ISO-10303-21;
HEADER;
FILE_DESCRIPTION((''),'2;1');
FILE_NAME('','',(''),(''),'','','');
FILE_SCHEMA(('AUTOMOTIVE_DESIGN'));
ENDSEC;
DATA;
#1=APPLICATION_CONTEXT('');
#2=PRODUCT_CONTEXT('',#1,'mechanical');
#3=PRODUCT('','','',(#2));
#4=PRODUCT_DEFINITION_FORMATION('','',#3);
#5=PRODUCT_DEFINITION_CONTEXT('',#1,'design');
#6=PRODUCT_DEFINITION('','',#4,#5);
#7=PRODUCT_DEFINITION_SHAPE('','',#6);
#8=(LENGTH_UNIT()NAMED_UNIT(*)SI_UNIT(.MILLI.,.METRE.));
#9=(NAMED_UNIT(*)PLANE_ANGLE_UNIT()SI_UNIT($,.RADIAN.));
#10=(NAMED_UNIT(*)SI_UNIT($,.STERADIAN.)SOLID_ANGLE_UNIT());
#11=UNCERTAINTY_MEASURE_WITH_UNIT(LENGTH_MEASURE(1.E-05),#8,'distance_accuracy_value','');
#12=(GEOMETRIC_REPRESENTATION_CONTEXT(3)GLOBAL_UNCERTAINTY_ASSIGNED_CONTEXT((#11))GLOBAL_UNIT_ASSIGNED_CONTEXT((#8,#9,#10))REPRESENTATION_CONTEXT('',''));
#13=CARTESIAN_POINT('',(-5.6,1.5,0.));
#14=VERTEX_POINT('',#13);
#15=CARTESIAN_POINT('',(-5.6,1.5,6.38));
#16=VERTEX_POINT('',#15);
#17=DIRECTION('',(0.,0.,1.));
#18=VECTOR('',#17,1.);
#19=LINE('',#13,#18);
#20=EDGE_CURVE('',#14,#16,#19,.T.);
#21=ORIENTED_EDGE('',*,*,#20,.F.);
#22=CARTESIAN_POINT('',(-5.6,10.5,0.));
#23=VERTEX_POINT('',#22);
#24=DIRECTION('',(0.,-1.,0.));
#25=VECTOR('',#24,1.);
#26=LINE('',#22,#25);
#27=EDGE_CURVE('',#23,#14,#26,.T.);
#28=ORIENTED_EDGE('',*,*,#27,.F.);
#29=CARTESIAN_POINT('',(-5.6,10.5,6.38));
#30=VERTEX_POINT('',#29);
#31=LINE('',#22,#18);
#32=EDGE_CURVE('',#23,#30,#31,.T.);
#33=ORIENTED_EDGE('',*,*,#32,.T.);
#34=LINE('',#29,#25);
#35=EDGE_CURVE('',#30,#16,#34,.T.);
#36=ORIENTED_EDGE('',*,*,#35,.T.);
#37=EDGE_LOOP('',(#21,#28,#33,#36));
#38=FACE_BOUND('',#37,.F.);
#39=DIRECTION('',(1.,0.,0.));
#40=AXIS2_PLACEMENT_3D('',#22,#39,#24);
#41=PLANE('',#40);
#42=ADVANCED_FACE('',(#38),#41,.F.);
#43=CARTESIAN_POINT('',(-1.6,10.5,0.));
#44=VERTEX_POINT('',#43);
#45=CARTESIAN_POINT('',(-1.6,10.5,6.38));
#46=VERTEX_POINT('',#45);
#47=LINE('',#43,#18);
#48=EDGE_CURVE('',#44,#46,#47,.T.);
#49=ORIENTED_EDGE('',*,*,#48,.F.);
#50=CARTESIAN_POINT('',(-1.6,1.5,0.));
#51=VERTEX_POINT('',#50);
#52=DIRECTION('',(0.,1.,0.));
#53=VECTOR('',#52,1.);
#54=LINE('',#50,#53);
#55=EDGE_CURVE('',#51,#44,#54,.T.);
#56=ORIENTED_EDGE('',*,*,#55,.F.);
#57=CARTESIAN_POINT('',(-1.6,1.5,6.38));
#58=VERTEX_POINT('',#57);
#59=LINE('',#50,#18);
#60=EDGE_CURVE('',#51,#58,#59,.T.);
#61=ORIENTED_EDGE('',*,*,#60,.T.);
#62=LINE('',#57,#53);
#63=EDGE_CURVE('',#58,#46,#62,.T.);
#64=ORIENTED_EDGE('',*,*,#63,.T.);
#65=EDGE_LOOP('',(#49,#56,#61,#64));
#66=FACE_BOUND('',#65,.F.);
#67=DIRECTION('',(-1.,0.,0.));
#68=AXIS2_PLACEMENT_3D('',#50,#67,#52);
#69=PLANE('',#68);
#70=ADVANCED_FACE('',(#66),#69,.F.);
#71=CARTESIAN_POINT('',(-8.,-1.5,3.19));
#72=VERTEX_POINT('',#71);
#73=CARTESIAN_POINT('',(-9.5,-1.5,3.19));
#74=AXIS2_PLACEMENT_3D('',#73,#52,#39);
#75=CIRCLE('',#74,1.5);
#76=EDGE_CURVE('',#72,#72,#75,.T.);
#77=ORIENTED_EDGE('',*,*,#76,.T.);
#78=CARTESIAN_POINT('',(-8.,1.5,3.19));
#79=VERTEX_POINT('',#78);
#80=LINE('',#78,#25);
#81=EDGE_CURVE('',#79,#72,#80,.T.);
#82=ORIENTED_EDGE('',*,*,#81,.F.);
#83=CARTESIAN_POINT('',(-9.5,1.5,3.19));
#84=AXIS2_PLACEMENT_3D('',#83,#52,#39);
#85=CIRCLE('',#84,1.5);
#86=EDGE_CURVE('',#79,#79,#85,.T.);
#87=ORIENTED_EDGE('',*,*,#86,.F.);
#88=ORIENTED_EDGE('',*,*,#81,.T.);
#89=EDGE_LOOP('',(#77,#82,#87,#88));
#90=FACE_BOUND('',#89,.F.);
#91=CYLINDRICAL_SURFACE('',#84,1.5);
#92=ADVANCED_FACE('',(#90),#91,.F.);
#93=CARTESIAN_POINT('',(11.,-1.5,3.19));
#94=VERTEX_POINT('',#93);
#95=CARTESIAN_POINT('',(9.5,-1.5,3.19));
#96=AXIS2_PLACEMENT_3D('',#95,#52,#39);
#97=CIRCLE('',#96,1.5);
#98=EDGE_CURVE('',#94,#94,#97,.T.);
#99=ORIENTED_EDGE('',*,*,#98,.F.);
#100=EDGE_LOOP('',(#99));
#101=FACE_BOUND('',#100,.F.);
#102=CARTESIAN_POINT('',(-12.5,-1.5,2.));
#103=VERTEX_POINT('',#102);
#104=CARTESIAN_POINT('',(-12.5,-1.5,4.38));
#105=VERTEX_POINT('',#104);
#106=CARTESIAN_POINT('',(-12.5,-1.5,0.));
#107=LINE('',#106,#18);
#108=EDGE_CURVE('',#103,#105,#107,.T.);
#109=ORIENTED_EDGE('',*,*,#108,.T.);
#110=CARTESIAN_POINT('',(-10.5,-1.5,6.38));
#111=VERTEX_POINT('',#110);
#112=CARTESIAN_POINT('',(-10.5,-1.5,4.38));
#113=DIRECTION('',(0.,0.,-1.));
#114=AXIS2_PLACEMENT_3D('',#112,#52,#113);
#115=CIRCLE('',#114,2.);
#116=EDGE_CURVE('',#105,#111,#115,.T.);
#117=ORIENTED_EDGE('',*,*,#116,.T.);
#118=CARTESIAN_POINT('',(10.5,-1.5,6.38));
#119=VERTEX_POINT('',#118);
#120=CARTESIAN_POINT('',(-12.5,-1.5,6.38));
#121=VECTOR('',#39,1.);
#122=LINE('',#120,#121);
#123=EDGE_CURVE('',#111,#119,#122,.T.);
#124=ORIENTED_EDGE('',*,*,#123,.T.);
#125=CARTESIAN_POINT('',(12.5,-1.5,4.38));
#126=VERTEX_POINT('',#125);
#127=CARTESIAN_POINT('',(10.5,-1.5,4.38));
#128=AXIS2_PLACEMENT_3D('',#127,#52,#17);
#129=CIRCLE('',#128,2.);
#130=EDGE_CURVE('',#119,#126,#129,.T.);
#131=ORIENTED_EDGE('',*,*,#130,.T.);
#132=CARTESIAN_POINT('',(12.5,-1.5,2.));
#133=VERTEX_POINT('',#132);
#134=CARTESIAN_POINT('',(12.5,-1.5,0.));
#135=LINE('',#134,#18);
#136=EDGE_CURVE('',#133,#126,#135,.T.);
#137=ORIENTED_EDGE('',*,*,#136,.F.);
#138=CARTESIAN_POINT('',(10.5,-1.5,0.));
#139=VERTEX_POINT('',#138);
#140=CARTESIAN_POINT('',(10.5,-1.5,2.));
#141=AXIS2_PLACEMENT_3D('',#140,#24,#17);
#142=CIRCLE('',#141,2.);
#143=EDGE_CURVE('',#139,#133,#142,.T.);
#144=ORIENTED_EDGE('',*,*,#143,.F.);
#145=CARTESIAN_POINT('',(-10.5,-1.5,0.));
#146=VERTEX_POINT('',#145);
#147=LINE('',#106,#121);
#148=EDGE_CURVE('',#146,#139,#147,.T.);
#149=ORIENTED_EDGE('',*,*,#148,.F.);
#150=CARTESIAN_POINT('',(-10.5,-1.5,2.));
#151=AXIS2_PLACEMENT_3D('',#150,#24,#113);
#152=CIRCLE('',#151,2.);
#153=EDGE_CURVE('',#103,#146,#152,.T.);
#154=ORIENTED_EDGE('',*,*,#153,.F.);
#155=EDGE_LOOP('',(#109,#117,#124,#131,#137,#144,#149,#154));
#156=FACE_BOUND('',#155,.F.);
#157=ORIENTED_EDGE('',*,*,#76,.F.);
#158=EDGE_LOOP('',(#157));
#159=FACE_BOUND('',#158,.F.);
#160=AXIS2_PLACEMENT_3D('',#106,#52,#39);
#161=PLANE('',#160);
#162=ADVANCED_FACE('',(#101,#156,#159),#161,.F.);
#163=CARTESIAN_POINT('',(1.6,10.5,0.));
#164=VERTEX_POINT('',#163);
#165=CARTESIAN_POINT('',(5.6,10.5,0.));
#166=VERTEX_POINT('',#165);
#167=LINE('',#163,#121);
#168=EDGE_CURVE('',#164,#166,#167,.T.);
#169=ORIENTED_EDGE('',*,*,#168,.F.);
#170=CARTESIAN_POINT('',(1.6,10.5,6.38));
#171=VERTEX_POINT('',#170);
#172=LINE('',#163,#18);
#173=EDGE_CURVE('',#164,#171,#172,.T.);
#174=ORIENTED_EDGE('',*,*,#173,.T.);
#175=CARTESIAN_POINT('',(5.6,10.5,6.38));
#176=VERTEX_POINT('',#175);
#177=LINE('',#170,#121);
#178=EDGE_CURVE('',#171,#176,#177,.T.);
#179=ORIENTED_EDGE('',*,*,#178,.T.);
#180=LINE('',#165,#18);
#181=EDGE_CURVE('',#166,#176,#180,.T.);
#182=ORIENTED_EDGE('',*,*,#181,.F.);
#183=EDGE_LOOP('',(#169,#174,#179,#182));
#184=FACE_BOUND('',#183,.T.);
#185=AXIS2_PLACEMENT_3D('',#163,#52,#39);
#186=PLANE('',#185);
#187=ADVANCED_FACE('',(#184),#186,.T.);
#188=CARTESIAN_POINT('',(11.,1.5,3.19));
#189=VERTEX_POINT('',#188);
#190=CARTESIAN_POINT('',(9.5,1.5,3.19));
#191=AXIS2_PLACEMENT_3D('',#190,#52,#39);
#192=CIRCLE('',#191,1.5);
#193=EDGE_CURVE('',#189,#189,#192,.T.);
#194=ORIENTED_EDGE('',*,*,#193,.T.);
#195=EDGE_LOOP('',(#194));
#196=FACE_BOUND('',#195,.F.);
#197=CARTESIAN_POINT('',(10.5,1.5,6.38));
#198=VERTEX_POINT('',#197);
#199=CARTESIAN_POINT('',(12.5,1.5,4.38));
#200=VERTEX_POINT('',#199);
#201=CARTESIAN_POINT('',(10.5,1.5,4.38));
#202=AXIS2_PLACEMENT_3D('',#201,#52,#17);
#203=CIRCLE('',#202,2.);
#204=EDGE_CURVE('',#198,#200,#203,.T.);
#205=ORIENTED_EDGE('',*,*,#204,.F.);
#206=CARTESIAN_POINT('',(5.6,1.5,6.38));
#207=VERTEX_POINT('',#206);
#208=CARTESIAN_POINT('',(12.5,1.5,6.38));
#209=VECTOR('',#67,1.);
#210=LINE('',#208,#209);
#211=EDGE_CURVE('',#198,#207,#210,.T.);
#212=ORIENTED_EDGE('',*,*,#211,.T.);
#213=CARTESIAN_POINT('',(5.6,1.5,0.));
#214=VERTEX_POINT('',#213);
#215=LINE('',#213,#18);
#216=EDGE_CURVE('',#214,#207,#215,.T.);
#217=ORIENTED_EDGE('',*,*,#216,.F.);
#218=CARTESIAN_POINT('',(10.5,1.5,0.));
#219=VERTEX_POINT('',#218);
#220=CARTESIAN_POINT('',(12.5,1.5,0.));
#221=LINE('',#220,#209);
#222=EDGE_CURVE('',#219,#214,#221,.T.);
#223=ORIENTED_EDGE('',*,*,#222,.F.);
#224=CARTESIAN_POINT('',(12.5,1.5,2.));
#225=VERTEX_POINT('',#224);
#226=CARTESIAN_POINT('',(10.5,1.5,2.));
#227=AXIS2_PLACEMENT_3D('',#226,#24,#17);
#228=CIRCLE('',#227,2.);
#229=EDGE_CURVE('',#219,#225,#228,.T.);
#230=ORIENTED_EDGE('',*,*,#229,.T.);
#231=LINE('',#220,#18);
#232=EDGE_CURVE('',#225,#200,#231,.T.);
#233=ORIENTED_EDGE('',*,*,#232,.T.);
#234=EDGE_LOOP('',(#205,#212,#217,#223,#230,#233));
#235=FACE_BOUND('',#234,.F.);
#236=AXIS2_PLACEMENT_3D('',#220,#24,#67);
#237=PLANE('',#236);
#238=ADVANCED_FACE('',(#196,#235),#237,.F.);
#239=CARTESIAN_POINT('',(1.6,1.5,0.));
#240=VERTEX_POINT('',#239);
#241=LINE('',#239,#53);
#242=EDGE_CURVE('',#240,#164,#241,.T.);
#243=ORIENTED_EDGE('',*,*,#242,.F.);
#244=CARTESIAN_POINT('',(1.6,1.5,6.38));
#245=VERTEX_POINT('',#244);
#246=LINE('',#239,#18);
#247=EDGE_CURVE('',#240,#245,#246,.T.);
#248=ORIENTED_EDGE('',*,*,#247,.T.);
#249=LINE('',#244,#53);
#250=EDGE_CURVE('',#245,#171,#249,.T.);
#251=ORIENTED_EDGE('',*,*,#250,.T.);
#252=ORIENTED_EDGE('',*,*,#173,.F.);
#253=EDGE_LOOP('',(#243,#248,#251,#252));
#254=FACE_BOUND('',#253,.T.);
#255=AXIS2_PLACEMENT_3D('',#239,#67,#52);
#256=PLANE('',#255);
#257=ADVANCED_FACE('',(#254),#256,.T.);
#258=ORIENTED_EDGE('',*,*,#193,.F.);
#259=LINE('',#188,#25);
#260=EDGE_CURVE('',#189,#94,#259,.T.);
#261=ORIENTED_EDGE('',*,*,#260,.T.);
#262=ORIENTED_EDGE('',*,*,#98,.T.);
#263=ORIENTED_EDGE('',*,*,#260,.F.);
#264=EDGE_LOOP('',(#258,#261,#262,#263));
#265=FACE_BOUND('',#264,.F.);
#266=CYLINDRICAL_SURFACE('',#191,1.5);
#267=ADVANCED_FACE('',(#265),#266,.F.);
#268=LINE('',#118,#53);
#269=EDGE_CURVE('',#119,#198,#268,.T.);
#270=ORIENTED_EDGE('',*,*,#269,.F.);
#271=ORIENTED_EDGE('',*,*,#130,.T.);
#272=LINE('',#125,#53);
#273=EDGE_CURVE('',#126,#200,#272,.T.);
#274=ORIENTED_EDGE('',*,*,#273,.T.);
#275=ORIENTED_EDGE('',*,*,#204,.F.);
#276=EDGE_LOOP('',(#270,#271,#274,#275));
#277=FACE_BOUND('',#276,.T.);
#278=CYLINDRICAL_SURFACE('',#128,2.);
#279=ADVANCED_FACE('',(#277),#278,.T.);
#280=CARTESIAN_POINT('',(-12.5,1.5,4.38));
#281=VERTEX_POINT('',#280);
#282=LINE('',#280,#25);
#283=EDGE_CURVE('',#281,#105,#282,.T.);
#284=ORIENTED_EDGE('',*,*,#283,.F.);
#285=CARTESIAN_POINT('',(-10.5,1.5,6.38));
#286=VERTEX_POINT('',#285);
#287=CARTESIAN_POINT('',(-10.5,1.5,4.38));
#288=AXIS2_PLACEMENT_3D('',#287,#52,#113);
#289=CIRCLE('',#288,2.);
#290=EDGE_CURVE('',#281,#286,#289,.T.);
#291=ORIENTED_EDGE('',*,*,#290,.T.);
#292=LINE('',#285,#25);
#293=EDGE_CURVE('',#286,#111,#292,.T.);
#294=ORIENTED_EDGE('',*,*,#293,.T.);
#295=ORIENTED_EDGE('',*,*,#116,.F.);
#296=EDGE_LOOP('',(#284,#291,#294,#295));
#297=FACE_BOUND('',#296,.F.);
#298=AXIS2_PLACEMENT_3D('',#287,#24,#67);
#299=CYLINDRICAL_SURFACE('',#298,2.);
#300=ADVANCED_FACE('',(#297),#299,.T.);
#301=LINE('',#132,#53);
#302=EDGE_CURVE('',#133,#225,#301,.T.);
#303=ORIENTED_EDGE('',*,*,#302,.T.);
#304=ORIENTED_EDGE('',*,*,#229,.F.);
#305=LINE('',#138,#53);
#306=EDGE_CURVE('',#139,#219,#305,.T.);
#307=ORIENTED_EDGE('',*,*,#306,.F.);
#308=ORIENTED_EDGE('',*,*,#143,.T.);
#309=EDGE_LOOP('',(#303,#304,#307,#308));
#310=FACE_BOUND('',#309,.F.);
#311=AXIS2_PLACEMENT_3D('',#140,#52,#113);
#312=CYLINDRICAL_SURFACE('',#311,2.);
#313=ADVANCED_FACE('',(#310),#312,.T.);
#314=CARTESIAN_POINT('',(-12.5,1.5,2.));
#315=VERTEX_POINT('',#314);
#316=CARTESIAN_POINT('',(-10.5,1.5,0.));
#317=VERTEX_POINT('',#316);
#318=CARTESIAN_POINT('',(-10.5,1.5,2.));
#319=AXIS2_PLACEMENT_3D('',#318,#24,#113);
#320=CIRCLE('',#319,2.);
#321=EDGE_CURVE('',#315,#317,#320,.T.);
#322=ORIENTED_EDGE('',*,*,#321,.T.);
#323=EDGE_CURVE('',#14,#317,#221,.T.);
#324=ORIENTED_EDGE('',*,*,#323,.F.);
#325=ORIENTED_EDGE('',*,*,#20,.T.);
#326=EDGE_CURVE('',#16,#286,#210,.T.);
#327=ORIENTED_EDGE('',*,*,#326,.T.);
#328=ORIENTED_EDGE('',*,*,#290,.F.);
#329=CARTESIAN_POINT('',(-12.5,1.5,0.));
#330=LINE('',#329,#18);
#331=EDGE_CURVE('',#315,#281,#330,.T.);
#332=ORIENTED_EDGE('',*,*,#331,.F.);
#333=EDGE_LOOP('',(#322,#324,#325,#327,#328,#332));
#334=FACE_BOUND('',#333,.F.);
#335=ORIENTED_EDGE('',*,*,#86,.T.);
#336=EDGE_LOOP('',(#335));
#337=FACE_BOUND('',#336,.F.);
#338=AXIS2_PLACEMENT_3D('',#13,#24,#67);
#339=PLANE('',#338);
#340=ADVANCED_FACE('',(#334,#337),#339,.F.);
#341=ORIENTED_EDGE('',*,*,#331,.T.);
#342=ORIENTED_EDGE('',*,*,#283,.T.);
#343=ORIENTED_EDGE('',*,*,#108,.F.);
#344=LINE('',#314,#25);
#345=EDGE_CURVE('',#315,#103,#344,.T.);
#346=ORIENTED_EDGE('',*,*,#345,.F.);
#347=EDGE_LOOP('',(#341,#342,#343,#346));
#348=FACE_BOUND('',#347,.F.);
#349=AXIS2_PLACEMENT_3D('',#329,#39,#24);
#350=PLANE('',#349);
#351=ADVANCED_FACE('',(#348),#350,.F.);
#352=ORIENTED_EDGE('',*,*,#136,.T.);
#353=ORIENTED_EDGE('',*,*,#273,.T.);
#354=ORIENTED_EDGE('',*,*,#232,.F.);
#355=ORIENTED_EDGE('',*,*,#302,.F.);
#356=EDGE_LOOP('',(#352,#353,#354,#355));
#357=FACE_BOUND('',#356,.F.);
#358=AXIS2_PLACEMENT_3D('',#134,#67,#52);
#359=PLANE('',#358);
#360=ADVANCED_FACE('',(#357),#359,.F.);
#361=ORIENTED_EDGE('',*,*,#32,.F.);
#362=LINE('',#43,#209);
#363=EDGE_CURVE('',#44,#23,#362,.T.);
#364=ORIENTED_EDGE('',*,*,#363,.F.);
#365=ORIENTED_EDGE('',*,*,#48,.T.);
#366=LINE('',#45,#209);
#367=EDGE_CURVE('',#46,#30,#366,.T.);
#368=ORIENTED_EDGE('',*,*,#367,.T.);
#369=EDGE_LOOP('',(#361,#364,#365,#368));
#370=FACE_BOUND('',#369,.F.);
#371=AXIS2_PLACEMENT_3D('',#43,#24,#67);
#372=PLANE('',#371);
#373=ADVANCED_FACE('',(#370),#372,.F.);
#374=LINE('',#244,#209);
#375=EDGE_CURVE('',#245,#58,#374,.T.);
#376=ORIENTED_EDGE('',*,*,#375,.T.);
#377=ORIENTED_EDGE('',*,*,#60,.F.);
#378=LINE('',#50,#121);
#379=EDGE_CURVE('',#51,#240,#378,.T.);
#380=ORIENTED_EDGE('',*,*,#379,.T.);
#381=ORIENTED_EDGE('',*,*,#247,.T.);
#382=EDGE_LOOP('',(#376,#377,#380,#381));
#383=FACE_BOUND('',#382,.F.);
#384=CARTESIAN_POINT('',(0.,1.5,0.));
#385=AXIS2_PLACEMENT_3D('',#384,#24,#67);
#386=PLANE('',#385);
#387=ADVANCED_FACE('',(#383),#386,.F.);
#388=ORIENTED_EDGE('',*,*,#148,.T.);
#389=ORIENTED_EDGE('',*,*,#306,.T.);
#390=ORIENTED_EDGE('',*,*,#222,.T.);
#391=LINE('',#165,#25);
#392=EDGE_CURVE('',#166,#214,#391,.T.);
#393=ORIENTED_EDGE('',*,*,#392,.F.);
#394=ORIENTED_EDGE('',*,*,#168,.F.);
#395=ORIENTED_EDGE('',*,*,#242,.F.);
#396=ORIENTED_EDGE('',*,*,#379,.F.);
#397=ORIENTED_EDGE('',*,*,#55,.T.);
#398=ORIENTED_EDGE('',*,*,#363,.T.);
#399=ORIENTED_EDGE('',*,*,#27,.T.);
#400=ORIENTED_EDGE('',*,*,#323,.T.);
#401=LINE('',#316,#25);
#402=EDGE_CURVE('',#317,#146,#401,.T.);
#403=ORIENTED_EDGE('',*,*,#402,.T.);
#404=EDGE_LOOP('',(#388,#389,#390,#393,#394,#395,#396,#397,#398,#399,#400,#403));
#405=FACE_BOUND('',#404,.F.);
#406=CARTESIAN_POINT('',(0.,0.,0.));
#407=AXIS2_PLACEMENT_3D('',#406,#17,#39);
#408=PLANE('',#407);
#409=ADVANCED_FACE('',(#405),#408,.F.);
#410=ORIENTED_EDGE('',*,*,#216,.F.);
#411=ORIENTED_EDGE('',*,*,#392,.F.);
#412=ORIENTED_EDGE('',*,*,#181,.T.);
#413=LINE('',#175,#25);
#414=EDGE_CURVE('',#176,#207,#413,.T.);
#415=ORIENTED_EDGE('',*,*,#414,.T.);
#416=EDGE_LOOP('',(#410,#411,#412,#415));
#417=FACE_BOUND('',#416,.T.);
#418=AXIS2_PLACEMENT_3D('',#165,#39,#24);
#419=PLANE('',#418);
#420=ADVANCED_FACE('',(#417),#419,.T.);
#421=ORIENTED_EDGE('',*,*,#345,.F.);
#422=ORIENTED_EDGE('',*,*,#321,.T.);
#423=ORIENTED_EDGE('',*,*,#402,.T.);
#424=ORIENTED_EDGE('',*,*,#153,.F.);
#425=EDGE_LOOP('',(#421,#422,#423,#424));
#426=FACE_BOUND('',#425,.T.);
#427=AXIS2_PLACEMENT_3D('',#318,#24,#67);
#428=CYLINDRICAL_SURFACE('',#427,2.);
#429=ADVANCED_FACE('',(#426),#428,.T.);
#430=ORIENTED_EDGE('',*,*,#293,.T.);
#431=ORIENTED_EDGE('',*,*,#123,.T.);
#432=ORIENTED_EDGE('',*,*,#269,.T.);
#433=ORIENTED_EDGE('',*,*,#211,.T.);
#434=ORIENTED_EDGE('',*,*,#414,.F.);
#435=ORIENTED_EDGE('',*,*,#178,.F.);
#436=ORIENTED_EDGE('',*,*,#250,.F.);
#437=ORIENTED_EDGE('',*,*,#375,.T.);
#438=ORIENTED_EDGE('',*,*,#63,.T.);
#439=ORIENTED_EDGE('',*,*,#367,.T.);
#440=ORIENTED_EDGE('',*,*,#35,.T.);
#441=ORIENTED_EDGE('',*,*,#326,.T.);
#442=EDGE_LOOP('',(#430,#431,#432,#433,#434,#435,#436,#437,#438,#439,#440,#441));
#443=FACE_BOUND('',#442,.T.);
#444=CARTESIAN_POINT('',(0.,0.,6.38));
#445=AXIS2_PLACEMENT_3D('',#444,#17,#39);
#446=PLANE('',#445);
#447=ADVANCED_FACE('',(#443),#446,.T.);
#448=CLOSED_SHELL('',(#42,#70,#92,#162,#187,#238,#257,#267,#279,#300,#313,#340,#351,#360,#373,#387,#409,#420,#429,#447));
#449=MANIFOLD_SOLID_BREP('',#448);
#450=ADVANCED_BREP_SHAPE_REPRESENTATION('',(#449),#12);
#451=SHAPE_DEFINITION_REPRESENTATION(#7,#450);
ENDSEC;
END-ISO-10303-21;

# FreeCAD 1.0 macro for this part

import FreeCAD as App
import Part
import Sketcher
Q = App.Units.Quantity


def edges_at(feature, points):
    """Names of the edges that pass closest to the given points."""
    edges = feature.Shape.Edges
    near = lambda p: min(range(len(edges)), key=lambda i: edges[i].distToShape(Part.Vertex(*p))[0])
    return sorted({f"Edge{near(p) + 1}" for p in points})


def add_polygon(sketch, points):
    """Adds a closed chain of lines whose ends are joined by coincident constraints."""
    first, n = sketch.GeometryCount, len(points)
    for a, b in zip(points, points[1:] + points[:1]):
        sketch.addGeometry(Part.LineSegment(App.Vector(*a, 0), App.Vector(*b, 0)), False)
    for i in range(n):
        sketch.addConstraint(Sketcher.Constraint("Coincident", first + i, 2, first + (i + 1) % n, 1))

doc = App.newDocument("Part")
body = doc.addObject("PartDesign::Body", "Body")

# Sketch on XY plane
sketch1 = body.newObject("Sketcher::SketchObject", "Sketch")
sketch1.AttachmentSupport = (doc.getObject("XY_Plane"), [""])
sketch1.MapMode = "FlatFace"
add_polygon(sketch1, [(-12.5, 1.5), (-12.5, -1.5), (12.5, -1.5), (12.5, 1.5), (5.6, 1.5), (5.6, 10.5), (1.6, 10.5), (1.6, 1.5), (-1.6, 1.5), (-1.6, 10.5), (-5.6, 10.5), (-5.6, 1.5)])  # lines 0-11
sketch1.addConstraint([
    Sketcher.Constraint("Vertical", 0),
    Sketcher.Constraint("Horizontal", 1),
    Sketcher.Constraint("Vertical", 2),
    Sketcher.Constraint("Horizontal", 3),
    Sketcher.Constraint("Vertical", 4),
    Sketcher.Constraint("Horizontal", 5),
    Sketcher.Constraint("Vertical", 6),
    Sketcher.Constraint("Horizontal", 7),
    Sketcher.Constraint("Vertical", 8),
    Sketcher.Constraint("Horizontal", 9),
    Sketcher.Constraint("Vertical", 10),
    Sketcher.Constraint("Horizontal", 11),
    Sketcher.Constraint("Symmetric", 0, 2, 2, 2, -1, 1),
    Sketcher.Constraint("Symmetric", 5, 2, 8, 2, -2),
    Sketcher.Constraint("Symmetric", 3, 2, 10, 2, -2),
    Sketcher.Constraint("Horizontal", 3, 2, 6, 2),
    Sketcher.Constraint("DistanceX", 1, 1, 1, 2, Q("25 mm")),
    Sketcher.Constraint("DistanceX", 5, 2, 5, 1, Q("4 mm")),
    Sketcher.Constraint("DistanceY", 0, 2, 0, 1, Q("3 mm")),
    Sketcher.Constraint("DistanceY", 4, 1, 4, 2, Q("9 mm")),
    Sketcher.Constraint("DistanceX", 7, 2, 7, 1, Q("3.2 mm")),
])
pad1 = body.newObject("PartDesign::Pad", "Pad")
pad1.Profile = sketch1
pad1.Length = 6.38

# Sketch on XZ plane
sketch2 = body.newObject("Sketcher::SketchObject", "Sketch001")
sketch2.AttachmentSupport = (doc.getObject("XZ_Plane"), [""])
sketch2.MapMode = "FlatFace"
sketch2.AttachmentOffset = App.Placement(App.Vector(0, 0, -1.5), App.Rotation())
sketch2.addGeometry([
    Part.Circle(App.Vector(9.5, 3.2, 0), App.Vector(0, 0, 1), 1.5),
    Part.Circle(App.Vector(-9.5, 3.2, 0), App.Vector(0, 0, 1), 1.5),
], False)
sketch2.addConstraint([
    Sketcher.Constraint("Equal", 0, 1),
    Sketcher.Constraint("Symmetric", 0, 3, 1, 3, -2),
    Sketcher.Constraint("Diameter", 0, Q("3 mm")),
    Sketcher.Constraint("DistanceX", 1, 3, 0, 3, Q("19 mm")),
    Sketcher.Constraint("DistanceY", -1, 1, 0, 3, Q("3.19 mm")),
])
pocket1 = body.newObject("PartDesign::Pocket", "Pocket")
pocket1.Profile = sketch2
pocket1.Type = "ThroughAll"
pocket1.Reversed = True
doc.recompute()

fillet = body.newObject("PartDesign::Fillet", "Fillet")
fillet.Base = (pocket1, edges_at(pocket1, [
    (12.5, 0, 6.38),
    (12.5, 0, 0),
    (-12.5, 0, 6.38),
    (-12.5, 0, 0),
]))
fillet.Radius = 2

doc.recompute()
